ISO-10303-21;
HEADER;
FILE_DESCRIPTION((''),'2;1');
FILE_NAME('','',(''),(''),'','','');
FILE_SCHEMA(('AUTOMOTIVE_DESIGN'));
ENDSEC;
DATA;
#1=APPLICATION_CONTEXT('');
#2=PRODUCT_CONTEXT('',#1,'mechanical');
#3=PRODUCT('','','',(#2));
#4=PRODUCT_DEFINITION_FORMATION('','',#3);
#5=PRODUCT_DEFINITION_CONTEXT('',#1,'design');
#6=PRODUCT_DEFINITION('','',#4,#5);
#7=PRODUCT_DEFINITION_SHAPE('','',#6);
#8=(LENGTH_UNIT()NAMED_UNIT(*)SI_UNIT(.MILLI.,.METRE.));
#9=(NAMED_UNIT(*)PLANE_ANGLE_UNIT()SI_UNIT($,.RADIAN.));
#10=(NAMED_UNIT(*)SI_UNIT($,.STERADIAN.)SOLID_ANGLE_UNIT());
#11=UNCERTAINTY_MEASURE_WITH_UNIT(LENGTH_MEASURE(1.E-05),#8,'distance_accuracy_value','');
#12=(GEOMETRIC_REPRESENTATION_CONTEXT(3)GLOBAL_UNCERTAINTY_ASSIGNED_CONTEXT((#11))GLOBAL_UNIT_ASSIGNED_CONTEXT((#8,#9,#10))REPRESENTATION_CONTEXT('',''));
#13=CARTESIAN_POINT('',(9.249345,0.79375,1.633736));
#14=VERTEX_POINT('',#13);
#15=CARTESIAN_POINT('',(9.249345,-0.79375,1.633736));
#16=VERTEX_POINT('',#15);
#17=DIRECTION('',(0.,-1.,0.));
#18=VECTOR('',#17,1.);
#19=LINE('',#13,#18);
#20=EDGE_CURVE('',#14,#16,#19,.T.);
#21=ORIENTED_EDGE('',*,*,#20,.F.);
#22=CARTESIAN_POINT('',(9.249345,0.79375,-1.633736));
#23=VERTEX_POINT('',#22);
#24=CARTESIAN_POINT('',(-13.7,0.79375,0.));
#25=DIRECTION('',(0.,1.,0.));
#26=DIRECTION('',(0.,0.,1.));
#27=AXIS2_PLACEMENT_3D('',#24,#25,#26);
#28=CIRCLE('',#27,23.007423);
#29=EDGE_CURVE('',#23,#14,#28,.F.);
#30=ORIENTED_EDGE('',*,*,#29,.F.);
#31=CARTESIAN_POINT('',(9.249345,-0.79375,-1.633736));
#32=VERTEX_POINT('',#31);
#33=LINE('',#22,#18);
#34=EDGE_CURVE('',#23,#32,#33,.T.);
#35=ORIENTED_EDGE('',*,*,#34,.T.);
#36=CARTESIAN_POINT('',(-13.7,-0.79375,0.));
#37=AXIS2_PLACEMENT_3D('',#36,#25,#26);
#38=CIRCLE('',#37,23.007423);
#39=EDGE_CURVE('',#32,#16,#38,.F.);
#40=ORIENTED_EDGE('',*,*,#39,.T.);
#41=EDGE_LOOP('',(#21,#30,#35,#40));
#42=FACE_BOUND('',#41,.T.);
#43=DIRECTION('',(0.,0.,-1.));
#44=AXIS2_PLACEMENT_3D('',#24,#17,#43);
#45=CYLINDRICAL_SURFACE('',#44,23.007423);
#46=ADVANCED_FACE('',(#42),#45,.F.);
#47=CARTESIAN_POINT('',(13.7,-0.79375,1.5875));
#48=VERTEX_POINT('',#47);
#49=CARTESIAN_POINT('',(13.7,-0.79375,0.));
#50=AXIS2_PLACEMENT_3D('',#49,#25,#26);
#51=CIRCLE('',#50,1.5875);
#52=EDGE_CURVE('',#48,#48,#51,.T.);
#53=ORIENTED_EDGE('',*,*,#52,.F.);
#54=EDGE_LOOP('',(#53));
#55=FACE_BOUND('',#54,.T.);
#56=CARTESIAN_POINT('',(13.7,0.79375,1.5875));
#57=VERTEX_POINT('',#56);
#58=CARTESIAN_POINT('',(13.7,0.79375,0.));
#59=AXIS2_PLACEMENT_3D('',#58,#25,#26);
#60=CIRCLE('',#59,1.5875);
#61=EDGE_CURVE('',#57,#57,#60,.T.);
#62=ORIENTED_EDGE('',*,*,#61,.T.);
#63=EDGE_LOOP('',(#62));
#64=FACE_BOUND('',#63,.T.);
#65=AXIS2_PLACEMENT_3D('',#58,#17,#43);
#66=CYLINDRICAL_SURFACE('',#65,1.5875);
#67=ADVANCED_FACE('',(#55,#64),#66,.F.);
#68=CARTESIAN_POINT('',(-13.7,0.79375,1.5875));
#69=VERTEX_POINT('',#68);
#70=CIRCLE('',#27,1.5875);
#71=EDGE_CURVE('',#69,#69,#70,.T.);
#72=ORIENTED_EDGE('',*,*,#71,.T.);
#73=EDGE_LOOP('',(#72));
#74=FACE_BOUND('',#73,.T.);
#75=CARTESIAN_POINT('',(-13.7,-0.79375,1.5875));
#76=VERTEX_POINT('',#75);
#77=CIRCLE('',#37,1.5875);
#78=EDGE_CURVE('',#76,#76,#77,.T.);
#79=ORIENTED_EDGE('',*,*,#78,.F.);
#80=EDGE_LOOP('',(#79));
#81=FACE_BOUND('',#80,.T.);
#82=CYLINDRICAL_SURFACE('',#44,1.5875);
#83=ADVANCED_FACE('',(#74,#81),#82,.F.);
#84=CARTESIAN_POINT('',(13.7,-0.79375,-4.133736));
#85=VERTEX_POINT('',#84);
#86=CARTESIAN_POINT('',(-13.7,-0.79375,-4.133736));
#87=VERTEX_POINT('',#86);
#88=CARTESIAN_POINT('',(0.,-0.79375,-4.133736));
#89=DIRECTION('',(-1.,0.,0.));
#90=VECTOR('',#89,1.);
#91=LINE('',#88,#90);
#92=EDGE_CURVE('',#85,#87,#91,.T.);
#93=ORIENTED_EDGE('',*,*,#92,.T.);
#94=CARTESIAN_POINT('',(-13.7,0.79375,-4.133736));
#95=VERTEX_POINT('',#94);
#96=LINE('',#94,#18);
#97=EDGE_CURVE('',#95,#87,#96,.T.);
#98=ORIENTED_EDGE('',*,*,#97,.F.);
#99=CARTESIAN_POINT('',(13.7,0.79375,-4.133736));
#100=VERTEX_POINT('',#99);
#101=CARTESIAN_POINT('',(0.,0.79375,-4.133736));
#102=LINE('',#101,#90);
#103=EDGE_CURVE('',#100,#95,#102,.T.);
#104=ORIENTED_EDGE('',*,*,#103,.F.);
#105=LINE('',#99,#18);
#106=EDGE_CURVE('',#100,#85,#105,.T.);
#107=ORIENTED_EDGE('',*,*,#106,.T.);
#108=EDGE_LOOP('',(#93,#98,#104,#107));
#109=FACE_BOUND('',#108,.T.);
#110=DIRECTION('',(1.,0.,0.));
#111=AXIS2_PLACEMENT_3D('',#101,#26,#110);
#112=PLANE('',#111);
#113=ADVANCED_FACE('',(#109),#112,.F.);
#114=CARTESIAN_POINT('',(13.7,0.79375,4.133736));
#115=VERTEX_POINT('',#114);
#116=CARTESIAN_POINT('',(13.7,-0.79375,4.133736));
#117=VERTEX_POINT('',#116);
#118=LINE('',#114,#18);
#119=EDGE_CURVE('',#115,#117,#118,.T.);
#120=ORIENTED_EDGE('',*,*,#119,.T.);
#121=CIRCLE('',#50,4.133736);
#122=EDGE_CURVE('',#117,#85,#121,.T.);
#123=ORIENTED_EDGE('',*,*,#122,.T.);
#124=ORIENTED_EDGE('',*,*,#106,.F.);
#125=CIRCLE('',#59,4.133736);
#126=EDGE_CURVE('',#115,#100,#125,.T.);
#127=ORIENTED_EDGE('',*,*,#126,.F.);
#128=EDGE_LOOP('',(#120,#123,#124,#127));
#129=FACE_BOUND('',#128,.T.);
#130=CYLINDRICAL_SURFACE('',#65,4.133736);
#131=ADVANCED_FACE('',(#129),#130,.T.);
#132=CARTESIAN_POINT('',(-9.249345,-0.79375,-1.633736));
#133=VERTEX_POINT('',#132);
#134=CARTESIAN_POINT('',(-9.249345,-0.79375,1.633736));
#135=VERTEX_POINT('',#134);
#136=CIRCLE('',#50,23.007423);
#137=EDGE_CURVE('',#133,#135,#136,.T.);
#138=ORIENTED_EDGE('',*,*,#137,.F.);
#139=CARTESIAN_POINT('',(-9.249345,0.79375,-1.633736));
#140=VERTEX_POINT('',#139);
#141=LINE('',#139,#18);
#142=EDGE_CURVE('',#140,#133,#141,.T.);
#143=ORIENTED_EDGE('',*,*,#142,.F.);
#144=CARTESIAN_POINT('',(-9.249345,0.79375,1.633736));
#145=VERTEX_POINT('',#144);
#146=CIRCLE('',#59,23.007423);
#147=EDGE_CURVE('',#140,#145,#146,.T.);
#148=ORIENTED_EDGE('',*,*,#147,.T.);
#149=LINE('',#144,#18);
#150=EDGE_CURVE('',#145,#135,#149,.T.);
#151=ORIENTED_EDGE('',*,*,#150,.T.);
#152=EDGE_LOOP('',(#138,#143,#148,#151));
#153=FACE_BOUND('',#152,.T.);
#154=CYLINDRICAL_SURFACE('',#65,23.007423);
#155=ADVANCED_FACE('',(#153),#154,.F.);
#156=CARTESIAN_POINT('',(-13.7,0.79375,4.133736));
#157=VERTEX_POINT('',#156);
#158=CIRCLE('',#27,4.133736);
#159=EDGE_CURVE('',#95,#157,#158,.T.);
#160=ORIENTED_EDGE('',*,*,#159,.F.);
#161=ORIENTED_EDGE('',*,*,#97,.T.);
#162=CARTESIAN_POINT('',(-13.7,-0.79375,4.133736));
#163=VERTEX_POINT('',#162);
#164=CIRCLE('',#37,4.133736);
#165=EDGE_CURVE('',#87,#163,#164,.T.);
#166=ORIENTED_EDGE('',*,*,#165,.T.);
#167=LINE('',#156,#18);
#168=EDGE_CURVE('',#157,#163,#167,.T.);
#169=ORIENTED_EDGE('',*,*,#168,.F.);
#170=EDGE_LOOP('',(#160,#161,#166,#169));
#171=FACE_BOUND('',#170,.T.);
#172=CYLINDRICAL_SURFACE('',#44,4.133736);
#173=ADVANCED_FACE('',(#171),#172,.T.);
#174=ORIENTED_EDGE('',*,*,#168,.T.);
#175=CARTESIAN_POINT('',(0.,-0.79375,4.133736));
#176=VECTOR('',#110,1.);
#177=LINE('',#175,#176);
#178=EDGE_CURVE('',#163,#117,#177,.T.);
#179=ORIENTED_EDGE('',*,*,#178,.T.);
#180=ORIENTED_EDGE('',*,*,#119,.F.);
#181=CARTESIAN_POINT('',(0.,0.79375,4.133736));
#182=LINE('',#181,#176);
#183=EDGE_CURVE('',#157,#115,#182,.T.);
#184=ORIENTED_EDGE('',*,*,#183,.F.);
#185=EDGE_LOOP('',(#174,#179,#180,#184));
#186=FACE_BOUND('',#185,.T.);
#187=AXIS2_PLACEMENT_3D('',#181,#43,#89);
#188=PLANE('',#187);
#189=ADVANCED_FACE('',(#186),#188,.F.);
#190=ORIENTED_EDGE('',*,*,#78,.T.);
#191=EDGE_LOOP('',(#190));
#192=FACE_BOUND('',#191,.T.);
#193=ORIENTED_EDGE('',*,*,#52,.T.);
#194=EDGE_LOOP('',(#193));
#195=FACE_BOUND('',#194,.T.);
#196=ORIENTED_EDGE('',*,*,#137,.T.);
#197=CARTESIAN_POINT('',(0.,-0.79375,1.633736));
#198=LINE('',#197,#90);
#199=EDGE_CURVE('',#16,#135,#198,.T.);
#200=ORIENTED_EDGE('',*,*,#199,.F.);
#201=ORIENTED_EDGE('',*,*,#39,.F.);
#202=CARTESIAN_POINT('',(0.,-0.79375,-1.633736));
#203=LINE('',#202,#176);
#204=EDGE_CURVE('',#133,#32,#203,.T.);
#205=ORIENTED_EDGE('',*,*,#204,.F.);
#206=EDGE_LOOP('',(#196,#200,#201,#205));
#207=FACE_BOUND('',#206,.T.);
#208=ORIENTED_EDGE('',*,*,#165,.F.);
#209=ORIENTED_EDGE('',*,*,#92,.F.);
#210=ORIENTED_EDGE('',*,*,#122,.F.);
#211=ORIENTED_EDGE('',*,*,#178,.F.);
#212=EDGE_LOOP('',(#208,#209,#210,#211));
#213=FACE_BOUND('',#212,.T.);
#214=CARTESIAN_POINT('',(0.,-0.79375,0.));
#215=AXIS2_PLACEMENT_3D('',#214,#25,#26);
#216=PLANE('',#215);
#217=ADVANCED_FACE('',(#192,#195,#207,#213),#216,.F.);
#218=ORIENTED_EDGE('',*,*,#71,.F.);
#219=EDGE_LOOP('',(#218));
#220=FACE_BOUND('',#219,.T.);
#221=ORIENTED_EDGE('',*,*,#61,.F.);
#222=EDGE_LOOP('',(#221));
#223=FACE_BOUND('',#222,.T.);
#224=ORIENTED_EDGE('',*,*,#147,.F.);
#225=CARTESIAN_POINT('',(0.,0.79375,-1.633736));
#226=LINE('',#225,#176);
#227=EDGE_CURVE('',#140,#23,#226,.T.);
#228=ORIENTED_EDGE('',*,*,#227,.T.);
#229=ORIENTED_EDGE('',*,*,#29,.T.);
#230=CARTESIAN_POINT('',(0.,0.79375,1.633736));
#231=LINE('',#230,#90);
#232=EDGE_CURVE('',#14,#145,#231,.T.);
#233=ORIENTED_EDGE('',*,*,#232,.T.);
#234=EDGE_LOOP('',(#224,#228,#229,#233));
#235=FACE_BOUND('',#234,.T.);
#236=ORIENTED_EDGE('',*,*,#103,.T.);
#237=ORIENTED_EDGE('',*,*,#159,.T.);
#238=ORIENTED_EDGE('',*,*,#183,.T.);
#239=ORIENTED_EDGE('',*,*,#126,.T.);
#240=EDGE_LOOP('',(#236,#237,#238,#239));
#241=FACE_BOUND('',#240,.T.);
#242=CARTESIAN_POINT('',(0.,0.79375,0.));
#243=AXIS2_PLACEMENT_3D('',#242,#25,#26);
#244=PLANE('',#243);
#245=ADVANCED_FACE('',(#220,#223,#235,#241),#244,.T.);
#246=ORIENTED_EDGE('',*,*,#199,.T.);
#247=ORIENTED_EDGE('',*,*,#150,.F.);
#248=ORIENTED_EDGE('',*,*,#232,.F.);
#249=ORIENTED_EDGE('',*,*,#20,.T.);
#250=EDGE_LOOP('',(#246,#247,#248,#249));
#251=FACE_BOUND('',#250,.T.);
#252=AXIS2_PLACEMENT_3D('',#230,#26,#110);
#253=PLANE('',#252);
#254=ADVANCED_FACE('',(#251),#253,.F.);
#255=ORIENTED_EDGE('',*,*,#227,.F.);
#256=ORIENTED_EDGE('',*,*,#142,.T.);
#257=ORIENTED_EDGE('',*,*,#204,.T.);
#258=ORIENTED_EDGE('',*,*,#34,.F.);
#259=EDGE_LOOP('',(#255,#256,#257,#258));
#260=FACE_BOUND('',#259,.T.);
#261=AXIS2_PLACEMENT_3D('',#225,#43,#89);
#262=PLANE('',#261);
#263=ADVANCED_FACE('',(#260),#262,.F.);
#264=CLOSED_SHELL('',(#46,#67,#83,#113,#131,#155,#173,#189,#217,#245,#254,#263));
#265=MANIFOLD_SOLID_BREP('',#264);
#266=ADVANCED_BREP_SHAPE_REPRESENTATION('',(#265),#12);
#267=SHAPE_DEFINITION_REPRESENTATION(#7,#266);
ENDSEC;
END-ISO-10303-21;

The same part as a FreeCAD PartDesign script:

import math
import FreeCAD as App
import Part
import Sketcher
Q = App.Units.Quantity

doc = App.newDocument("Part")
body = doc.addObject("PartDesign::Body", "Body")

sketch1 = body.newObject("Sketcher::SketchObject", "Sketch")
sketch1.AttachmentSupport = (doc.getObject("XZ_Plane"), [""])
sketch1.MapMode = "FlatFace"
sketch1.addGeometry([
    Part.LineSegment(App.Vector(13.7, -4.1, 0), App.Vector(-13.7, -4.1, 0)),
    Part.ArcOfCircle(Part.Circle(App.Vector(-13.7, 0, 0), App.Vector(0, 0, 1), 4.1), math.radians(90), math.radians(270)),
    Part.LineSegment(App.Vector(-13.7, 4.1, 0), App.Vector(13.7, 4.1, 0)),
    Part.ArcOfCircle(Part.Circle(App.Vector(13.7, 0, 0), App.Vector(0, 0, 1), 4.1), math.radians(-90), math.radians(90)),
    Part.Circle(App.Vector(-13.7, 0, 0), App.Vector(0, 0, 1), 1.6),
    Part.ArcOfCircle(Part.Circle(App.Vector(-13.7, 0, 0), App.Vector(0, 0, 1), 23), math.radians(-4.07), math.radians(4.07)),
    Part.LineSegment(App.Vector(9.2, 1.6, 0), App.Vector(-9.2, 1.6, 0)),
    Part.ArcOfCircle(Part.Circle(App.Vector(13.7, 0, 0), App.Vector(0, 0, 1), 23), math.radians(175.93), math.radians(184.07)),
    Part.LineSegment(App.Vector(-9.2, -1.6, 0), App.Vector(9.2, -1.6, 0)),
    Part.Circle(App.Vector(13.7, 0, 0), App.Vector(0, 0, 1), 1.6),
], False)
sketch1.addConstraint([
    Sketcher.Constraint("Tangent", 0, 2, 1, 2),
    Sketcher.Constraint("Tangent", 1, 1, 2, 1),
    Sketcher.Constraint("Tangent", 2, 2, 3, 2),
    Sketcher.Constraint("Tangent", 3, 1, 0, 1),
    Sketcher.Constraint("Coincident", 5, 2, 6, 1),
    Sketcher.Constraint("Coincident", 6, 2, 7, 1),
    Sketcher.Constraint("Coincident", 7, 2, 8, 1),
    Sketcher.Constraint("Coincident", 8, 2, 5, 1),
    Sketcher.Constraint("Horizontal", 0),
    Sketcher.Constraint("Horizontal", 2),
    Sketcher.Constraint("Horizontal", 6),
    Sketcher.Constraint("Horizontal", 8),
    Sketcher.Constraint("Coincident", 4, 3, 1, 3),
    Sketcher.Constraint("Coincident", 5, 3, 1, 3),
    Sketcher.Constraint("Coincident", 7, 3, 3, 3),
    Sketcher.Constraint("Coincident", 9, 3, 3, 3),
    Sketcher.Constraint("Equal", 5, 7),
    Sketcher.Constraint("Equal", 4, 9),
    Sketcher.Constraint("Symmetric", 1, 3, 3, 3, -1, 1),
    Sketcher.Constraint("Vertical", 6, 2, 7, 2),
    Sketcher.Constraint("Diameter", 4, Q("0.125 in")),
    Sketcher.Constraint("DistanceX", 0, 2, 0, 1, 27.4),
    Sketcher.Constraint("Radius", 1, 4.133736),
    Sketcher.Constraint("Radius", 5, 23.007423),
    Sketcher.Constraint("DistanceX", 6, 2, 6, 1, 18.498689),
])
pad1 = body.newObject("PartDesign::Pad", "Pad")
pad1.Profile = sketch1
pad1.Length = Q("0.0625 in")
pad1.Midplane = True

doc.recompute()
